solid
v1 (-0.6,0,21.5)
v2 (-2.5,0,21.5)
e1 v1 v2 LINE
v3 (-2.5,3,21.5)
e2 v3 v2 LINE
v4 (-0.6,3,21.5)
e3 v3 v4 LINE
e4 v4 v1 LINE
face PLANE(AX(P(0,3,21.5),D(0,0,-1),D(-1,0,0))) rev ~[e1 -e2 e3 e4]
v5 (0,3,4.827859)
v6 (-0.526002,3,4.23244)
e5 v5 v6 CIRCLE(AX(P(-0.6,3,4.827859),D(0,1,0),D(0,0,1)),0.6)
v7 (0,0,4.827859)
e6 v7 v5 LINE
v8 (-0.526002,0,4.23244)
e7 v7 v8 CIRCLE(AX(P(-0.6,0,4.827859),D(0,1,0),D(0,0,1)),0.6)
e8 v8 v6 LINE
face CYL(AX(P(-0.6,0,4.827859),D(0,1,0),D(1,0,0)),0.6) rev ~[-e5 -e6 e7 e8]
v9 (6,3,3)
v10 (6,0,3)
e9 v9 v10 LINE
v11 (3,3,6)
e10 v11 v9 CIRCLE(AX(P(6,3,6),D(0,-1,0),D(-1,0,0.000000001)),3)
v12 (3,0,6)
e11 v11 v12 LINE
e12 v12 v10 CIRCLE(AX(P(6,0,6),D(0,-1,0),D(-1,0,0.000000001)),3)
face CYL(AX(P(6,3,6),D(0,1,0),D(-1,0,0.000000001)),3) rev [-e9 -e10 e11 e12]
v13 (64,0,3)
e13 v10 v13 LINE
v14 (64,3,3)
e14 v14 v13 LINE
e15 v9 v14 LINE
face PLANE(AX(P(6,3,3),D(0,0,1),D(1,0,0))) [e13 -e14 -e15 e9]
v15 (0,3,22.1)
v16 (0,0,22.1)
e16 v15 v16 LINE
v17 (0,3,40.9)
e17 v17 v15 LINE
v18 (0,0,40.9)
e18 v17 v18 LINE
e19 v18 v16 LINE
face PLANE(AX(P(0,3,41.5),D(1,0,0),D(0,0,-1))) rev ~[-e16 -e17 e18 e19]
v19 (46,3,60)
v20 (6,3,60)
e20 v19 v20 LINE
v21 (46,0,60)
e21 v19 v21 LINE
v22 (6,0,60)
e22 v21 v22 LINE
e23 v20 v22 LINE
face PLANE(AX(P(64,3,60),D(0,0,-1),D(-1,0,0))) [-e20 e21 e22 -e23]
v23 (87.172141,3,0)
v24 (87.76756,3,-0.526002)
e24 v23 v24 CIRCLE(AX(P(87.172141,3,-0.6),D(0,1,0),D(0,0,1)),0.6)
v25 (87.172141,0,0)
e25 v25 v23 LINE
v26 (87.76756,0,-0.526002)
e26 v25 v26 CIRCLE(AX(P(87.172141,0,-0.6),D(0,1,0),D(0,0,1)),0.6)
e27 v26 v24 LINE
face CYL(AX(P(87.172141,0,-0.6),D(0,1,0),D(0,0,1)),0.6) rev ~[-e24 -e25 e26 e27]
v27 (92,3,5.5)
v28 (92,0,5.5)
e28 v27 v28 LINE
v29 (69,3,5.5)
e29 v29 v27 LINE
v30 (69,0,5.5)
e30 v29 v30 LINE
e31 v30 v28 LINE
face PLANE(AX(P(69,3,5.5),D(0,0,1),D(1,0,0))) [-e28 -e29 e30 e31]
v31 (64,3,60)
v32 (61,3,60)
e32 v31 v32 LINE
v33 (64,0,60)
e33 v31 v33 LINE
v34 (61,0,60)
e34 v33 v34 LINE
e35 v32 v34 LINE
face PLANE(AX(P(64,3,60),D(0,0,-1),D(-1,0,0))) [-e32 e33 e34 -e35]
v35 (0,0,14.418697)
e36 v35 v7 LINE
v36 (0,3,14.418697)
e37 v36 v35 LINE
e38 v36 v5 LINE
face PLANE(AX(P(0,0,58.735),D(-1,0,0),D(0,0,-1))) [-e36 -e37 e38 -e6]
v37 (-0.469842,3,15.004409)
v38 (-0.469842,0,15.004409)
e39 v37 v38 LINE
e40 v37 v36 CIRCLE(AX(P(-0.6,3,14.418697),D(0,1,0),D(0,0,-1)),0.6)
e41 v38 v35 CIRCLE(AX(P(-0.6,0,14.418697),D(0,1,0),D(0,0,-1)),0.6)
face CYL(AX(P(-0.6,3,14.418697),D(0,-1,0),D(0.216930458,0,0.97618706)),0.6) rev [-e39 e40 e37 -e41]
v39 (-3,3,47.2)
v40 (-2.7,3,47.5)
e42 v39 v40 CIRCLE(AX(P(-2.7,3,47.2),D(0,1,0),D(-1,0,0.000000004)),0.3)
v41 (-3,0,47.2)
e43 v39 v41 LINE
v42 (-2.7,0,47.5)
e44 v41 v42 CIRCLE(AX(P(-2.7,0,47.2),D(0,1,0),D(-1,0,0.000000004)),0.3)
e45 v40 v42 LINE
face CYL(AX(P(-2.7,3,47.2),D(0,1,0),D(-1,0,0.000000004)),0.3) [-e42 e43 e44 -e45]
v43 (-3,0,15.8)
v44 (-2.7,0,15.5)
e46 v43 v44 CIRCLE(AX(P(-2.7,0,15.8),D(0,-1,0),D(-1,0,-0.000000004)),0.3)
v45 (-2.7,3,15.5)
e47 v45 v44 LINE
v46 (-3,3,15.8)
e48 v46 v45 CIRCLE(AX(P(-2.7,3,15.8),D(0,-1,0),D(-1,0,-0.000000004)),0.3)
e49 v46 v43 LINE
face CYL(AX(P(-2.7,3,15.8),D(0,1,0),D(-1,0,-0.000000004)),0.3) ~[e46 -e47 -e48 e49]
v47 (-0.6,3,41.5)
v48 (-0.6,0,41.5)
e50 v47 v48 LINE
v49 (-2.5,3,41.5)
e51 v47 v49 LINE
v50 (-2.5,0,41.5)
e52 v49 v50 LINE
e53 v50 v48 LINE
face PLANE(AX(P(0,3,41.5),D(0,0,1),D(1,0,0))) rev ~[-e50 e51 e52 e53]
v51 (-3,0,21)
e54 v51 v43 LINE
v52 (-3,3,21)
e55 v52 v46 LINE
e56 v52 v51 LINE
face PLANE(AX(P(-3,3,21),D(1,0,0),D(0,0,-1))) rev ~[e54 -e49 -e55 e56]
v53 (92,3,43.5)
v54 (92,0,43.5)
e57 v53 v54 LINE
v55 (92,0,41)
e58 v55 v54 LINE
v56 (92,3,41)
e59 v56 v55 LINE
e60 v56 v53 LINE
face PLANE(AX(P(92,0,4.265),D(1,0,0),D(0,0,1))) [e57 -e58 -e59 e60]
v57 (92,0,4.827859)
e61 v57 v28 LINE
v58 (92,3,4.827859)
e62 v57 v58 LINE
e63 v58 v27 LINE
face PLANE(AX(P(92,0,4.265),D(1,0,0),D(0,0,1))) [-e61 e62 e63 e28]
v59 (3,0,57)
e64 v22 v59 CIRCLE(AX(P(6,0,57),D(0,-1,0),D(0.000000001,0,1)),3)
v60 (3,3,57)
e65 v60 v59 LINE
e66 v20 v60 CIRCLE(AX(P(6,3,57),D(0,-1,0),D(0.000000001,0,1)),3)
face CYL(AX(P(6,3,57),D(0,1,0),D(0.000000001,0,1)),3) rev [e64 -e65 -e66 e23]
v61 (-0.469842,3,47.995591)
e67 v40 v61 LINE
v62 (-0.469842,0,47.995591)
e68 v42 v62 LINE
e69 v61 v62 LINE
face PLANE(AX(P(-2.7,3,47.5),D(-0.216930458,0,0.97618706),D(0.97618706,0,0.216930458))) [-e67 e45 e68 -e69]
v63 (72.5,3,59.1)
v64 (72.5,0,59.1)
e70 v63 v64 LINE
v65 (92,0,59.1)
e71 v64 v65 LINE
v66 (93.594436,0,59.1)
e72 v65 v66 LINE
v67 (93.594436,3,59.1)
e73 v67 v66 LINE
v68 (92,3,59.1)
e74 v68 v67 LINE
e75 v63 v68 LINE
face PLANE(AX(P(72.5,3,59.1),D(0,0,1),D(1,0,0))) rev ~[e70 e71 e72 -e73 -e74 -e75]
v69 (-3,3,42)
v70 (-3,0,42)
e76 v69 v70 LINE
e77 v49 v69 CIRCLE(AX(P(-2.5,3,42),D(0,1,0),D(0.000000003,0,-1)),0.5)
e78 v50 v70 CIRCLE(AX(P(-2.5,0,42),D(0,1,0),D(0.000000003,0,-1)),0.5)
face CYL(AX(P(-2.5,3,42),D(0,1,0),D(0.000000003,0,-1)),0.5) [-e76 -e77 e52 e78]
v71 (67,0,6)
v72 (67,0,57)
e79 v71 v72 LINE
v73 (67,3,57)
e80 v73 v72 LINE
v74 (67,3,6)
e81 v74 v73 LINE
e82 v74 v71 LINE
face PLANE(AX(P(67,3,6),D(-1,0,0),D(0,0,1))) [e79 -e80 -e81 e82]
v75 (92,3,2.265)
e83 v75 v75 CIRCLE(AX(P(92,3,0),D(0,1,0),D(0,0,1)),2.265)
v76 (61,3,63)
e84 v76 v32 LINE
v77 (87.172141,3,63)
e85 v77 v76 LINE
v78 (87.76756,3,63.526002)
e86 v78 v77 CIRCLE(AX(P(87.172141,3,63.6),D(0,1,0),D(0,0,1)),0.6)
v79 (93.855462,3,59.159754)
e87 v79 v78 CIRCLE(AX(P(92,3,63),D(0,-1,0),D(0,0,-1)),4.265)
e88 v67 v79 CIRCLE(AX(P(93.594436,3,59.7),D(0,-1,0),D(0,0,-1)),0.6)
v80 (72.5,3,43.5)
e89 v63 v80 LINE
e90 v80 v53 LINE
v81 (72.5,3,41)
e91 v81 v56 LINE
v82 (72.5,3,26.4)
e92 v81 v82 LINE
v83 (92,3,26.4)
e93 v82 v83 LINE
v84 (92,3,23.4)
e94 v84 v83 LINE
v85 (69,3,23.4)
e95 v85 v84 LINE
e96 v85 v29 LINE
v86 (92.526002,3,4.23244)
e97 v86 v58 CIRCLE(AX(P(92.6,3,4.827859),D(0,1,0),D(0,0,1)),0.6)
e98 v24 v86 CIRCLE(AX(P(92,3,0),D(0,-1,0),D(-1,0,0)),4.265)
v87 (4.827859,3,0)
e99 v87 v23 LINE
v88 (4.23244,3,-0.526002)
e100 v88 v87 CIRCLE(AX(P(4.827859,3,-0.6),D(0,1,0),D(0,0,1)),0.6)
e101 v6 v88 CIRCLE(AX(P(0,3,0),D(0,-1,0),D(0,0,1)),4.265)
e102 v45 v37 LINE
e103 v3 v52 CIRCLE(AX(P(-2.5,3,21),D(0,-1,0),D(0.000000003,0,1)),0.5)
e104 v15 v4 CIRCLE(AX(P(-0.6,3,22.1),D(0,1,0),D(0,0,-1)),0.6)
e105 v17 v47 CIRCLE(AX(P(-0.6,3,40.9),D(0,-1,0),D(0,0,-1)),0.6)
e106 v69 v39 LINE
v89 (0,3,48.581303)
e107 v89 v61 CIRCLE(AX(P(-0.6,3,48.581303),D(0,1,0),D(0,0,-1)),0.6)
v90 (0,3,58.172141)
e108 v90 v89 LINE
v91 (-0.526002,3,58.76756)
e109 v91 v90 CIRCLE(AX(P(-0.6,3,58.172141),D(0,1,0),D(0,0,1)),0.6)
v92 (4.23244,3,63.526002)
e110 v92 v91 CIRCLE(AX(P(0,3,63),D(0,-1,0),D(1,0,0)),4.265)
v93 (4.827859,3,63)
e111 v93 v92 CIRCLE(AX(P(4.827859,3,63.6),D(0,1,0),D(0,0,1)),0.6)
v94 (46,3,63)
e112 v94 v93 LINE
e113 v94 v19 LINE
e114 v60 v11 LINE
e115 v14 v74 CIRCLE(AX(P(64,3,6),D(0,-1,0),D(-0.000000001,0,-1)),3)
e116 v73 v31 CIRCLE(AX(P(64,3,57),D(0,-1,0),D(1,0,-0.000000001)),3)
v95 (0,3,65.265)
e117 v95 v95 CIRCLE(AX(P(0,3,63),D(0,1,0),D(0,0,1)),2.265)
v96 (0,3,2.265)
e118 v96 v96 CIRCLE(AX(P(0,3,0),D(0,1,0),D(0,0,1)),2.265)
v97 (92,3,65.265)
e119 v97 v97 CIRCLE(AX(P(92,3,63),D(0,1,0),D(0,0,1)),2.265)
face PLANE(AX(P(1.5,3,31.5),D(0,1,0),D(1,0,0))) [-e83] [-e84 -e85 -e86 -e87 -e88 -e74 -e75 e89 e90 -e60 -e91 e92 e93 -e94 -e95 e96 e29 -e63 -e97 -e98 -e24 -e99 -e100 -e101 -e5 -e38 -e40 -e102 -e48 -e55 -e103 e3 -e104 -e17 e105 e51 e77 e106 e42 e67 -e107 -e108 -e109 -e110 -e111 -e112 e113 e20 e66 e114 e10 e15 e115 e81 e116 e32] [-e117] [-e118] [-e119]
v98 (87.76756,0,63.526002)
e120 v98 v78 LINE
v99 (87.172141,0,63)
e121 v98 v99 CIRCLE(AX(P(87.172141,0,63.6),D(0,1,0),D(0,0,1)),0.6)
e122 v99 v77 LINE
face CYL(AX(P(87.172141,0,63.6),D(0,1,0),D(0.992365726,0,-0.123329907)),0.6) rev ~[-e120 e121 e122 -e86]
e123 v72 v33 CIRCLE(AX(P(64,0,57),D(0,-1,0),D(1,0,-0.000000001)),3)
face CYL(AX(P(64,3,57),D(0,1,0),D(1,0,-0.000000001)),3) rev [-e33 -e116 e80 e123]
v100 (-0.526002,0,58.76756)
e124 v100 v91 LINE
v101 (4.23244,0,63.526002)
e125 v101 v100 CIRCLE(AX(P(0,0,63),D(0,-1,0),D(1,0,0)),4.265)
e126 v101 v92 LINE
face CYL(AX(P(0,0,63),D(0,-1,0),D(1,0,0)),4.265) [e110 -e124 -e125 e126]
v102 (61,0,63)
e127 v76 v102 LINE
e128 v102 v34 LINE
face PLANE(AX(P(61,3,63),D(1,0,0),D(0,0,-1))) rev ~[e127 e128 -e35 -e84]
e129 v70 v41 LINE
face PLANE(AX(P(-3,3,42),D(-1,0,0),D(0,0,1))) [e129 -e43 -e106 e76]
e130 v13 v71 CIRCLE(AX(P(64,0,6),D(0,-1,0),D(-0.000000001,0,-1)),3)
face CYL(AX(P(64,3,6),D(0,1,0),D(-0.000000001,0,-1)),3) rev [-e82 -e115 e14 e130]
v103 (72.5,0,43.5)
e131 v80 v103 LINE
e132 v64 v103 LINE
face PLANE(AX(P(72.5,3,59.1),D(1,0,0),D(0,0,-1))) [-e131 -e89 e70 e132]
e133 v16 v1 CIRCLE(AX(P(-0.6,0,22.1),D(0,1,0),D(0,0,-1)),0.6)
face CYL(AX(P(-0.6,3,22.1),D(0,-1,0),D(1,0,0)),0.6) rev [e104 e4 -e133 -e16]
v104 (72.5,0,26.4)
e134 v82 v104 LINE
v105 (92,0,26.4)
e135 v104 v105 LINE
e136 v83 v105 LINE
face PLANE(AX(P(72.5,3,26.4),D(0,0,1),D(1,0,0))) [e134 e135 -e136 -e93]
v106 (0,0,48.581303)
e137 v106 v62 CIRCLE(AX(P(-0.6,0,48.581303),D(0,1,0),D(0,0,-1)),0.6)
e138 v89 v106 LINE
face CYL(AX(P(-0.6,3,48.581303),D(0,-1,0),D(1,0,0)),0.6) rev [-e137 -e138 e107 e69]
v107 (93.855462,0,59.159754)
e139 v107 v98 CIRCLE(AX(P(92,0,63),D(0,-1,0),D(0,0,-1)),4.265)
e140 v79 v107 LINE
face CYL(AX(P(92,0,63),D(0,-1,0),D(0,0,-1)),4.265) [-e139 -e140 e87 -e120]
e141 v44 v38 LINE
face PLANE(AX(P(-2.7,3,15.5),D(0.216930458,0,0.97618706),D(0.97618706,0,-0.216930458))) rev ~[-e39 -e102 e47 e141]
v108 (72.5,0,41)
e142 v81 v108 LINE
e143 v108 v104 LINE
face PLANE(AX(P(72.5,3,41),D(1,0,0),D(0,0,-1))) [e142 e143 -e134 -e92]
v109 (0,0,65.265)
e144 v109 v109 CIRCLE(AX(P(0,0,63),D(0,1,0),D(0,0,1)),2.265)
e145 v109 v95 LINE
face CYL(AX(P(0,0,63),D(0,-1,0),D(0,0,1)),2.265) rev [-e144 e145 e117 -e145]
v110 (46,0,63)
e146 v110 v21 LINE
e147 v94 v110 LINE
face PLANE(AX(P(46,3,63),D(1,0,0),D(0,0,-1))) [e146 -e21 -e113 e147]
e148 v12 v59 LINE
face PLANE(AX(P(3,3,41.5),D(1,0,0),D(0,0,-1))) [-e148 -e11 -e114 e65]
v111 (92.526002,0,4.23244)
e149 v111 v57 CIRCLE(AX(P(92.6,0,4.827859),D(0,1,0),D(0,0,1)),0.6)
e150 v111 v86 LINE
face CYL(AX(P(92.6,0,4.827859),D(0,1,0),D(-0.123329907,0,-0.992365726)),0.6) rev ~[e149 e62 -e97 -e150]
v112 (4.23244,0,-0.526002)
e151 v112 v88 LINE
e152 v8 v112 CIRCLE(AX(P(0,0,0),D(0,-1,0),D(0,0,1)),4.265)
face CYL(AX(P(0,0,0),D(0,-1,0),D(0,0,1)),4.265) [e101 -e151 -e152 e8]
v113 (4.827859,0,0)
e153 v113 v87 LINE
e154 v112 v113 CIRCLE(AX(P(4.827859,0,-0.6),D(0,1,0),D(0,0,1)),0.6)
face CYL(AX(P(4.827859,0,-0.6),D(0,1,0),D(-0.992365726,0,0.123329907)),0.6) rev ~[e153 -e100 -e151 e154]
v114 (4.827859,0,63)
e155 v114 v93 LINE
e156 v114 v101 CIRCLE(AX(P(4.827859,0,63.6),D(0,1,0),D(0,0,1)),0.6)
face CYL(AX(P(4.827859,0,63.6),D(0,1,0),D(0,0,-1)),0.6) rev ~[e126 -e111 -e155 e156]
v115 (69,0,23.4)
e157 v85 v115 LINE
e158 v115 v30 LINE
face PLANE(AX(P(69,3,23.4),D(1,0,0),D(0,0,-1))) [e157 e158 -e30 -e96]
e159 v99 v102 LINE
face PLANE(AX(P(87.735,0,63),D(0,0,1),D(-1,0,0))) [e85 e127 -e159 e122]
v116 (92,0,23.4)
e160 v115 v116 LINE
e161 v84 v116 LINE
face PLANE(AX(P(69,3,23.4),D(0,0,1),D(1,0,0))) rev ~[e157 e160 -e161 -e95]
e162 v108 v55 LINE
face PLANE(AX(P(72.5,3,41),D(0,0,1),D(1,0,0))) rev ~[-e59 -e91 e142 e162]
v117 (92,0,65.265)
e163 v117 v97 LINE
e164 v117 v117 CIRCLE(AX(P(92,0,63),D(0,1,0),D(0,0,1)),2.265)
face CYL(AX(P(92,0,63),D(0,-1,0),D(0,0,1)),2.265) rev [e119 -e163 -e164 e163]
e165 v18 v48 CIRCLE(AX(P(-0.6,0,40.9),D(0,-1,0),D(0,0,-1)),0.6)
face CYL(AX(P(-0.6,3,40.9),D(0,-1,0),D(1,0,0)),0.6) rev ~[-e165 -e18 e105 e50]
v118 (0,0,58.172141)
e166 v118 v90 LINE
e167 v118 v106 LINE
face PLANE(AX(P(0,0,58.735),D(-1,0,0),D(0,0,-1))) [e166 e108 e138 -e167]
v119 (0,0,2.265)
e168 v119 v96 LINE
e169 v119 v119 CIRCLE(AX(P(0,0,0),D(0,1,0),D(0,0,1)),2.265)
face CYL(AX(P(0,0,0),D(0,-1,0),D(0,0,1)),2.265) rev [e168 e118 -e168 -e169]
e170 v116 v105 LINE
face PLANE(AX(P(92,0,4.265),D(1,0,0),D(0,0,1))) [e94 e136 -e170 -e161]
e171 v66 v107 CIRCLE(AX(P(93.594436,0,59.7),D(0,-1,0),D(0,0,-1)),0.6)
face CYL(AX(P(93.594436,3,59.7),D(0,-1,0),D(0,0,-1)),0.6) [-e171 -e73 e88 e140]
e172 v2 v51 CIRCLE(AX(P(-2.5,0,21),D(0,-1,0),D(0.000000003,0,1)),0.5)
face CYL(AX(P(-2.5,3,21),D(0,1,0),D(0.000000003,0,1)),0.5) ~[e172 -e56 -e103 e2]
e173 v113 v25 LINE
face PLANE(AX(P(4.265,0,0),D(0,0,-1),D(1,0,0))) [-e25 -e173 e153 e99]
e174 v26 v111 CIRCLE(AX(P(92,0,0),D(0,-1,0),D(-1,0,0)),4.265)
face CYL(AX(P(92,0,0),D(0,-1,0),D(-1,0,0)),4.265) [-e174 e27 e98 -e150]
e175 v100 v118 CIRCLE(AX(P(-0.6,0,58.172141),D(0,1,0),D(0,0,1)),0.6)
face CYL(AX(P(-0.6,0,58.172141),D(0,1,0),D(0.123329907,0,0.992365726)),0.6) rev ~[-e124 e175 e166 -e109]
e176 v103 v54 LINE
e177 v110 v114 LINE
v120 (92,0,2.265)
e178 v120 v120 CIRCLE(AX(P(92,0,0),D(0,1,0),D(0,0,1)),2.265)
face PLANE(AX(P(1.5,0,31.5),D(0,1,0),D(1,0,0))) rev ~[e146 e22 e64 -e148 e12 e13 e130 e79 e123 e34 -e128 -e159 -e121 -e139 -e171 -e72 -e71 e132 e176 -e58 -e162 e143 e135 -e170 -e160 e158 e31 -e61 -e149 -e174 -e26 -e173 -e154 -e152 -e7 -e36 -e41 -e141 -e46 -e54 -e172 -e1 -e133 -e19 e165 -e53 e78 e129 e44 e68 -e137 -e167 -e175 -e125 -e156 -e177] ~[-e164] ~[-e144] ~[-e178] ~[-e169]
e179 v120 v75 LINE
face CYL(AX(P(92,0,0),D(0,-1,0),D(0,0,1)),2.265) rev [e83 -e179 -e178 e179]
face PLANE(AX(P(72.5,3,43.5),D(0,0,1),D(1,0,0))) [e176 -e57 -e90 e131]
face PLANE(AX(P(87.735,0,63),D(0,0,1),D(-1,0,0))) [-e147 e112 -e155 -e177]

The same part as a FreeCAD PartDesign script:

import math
import FreeCAD as App
import Part
import Sketcher
Q = App.Units.Quantity


def edges_at(feature, points):
    """Names of the edges that pass closest to the given points."""
    edges = feature.Shape.Edges
    near = lambda p: min(range(len(edges)), key=lambda i: edges[i].distToShape(Part.Vertex(*p))[0])
    return sorted({f"Edge{near(p) + 1}" for p in points})

doc = App.newDocument("Part")
body = doc.addObject("PartDesign::Body", "Body")

# Sketch on XZ plane
sketch1 = body.newObject("Sketcher::SketchObject", "Sketch")
sketch1.AttachmentSupport = (doc.getObject("XZ_Plane"), [""])
sketch1.MapMode = "FlatFace"
sketch1.addGeometry(Part.LineSegment(App.Vector(87.7, 0, 0), App.Vector(4.3, 0, 0)), False)
sketch1.addGeometry(Part.ArcOfCircle(Part.Circle(App.Vector(0, 0, 0), App.Vector(0, 0, 1), 4.3), math.radians(90), math.radians(360)), False)
sketch1.addGeometry(Part.LineSegment(App.Vector(0, 4.3, 0), App.Vector(0, 58.7, 0)), False)
sketch1.addGeometry(Part.ArcOfCircle(Part.Circle(App.Vector(0, 63, 0), App.Vector(0, 0, 1), 4.3), math.radians(0), math.radians(270)), False)
sketch1.addGeometry(Part.LineSegment(App.Vector(4.3, 63, 0), App.Vector(87.7, 63, 0)), False)
sketch1.addGeometry(Part.ArcOfCircle(Part.Circle(App.Vector(92, 63, 0), App.Vector(0, 0, 1), 4.3), math.radians(-90), math.radians(180)), False)
sketch1.addGeometry(Part.LineSegment(App.Vector(92, 58.7, 0), App.Vector(92, 4.3, 0)), False)
sketch1.addGeometry(Part.ArcOfCircle(Part.Circle(App.Vector(92, 0, 0), App.Vector(0, 0, 1), 4.3), math.radians(180), math.radians(450)), False)
sketch1.addGeometry(Part.Circle(App.Vector(92, 63, 0), App.Vector(0, 0, 1), 2.3), False)
sketch1.addGeometry(Part.Circle(App.Vector(0, 63, 0), App.Vector(0, 0, 1), 2.3), False)
sketch1.addGeometry(Part.Circle(App.Vector(92, 0, 0), App.Vector(0, 0, 1), 2.3), False)
sketch1.addGeometry(Part.Circle(App.Vector(0, 0, 0), App.Vector(0, 0, 1), 2.3), False)
sketch1.addConstraint(Sketcher.Constraint("Coincident", 0, 2, 1, 2))
sketch1.addConstraint(Sketcher.Constraint("Coincident", 1, 1, 2, 1))
sketch1.addConstraint(Sketcher.Constraint("Coincident", 2, 2, 3, 2))
sketch1.addConstraint(Sketcher.Constraint("Coincident", 3, 1, 4, 1))
sketch1.addConstraint(Sketcher.Constraint("Coincident", 4, 2, 5, 2))
sketch1.addConstraint(Sketcher.Constraint("Coincident", 5, 1, 6, 1))
sketch1.addConstraint(Sketcher.Constraint("Coincident", 6, 2, 7, 2))
sketch1.addConstraint(Sketcher.Constraint("Coincident", 7, 1, 0, 1))
sketch1.addConstraint(Sketcher.Constraint("Horizontal", 0))
sketch1.addConstraint(Sketcher.Constraint("Vertical", 2))
sketch1.addConstraint(Sketcher.Constraint("Horizontal", 4))
sketch1.addConstraint(Sketcher.Constraint("Vertical", 6))
sketch1.addConstraint(Sketcher.Constraint("Coincident", 1, 3, -1, 1))
sketch1.addConstraint(Sketcher.Constraint("Coincident", 11, 3, -1, 1))
sketch1.addConstraint(Sketcher.Constraint("Coincident", 8, 3, 5, 3))
sketch1.addConstraint(Sketcher.Constraint("Coincident", 9, 3, 3, 3))
sketch1.addConstraint(Sketcher.Constraint("Coincident", 10, 3, 7, 3))
sketch1.addConstraint(Sketcher.Constraint("Equal", 1, 3))
sketch1.addConstraint(Sketcher.Constraint("Equal", 3, 5))
sketch1.addConstraint(Sketcher.Constraint("Equal", 5, 7))
sketch1.addConstraint(Sketcher.Constraint("Equal", 8, 9))
sketch1.addConstraint(Sketcher.Constraint("Equal", 9, 10))
sketch1.addConstraint(Sketcher.Constraint("Equal", 10, 11))
sketch1.addConstraint(Sketcher.Constraint("PointOnObject", 3, 3, -2))
sketch1.addConstraint(Sketcher.Constraint("PointOnObject", 7, 3, -1))
sketch1.addConstraint(Sketcher.Constraint("PointOnObject", 0, 2, -1))
sketch1.addConstraint(Sketcher.Constraint("PointOnObject", 1, 1, -2))
sketch1.addConstraint(Sketcher.Constraint("Horizontal", 3, 3, 5, 3))
sketch1.addConstraint(Sketcher.Constraint("Horizontal", 9, 3, 3, 1))
sketch1.addConstraint(Sketcher.Constraint("Vertical", 5, 3, 7, 3))
sketch1.addConstraint(Sketcher.Constraint("Vertical", 10, 3, 5, 1))
sketch1.addConstraint(Sketcher.Constraint("Diameter", 8, Q("4.53 mm")))
sketch1.addConstraint(Sketcher.Constraint("DistanceY", -1, 1, 3, 3, Q("63 mm")))
sketch1.addConstraint(Sketcher.Constraint("DistanceX", -1, 1, 5, 3, Q("92 mm")))
sketch1.addConstraint(Sketcher.Constraint("Radius", 1, Q("4.265 mm")))
pad1 = body.newObject("PartDesign::Pad", "Pad")
pad1.Profile = sketch1
pad1.Length = 3
pad1.Reversed = True

# Sketch on XZ plane
sketch2 = body.newObject("Sketcher::SketchObject", "Sketch001")
sketch2.AttachmentSupport = (doc.getObject("XZ_Plane"), [""])
sketch2.MapMode = "FlatFace"
sketch2.AttachmentOffset = App.Placement(App.Vector(0, 0, -3), App.Rotation())
sketch2.addGeometry(Part.LineSegment(App.Vector(0, 22, 0), App.Vector(0, 42, 0)), False)
sketch2.addGeometry(Part.LineSegment(App.Vector(0, 42, 0), App.Vector(6, 42, 0)), False)
sketch2.addGeometry(Part.LineSegment(App.Vector(6, 42, 0), App.Vector(6, 22, 0)), False)
sketch2.addGeometry(Part.LineSegment(App.Vector(6, 22, 0), App.Vector(0, 22, 0)), False)
sketch2.addConstraint(Sketcher.Constraint("Coincident", 0, 2, 1, 1))
sketch2.addConstraint(Sketcher.Constraint("Coincident", 1, 2, 2, 1))
sketch2.addConstraint(Sketcher.Constraint("Coincident", 2, 2, 3, 1))
sketch2.addConstraint(Sketcher.Constraint("Coincident", 3, 2, 0, 1))
sketch2.addConstraint(Sketcher.Constraint("Vertical", 0))
sketch2.addConstraint(Sketcher.Constraint("Horizontal", 1))
sketch2.addConstraint(Sketcher.Constraint("Vertical", 2))
sketch2.addConstraint(Sketcher.Constraint("Horizontal", 3))
sketch2.addConstraint(Sketcher.Constraint("PointOnObject", 0, 2, -2))
sketch2.addConstraint(Sketcher.Constraint("DistanceY", 0, 1, 0, 2, Q("20 mm")))
sketch2.addConstraint(Sketcher.Constraint("DistanceX", 1, 1, 1, 2, Q("6.5 mm")))
sketch2.addConstraint(Sketcher.Constraint("DistanceY", -1, 1, 0, 2, Q("41.5 mm")))
pocket1 = body.newObject("PartDesign::Pocket", "Pocket")
pocket1.Profile = sketch2
pocket1.Length = 3
pocket1.Reversed = True

# Sketch on XZ plane
sketch3 = body.newObject("Sketcher::SketchObject", "Sketch002")
sketch3.AttachmentSupport = (doc.getObject("XZ_Plane"), [""])
sketch3.MapMode = "FlatFace"
sketch3.AttachmentOffset = App.Placement(App.Vector(0, 0, -3), App.Rotation())
sketch3.addGeometry(Part.LineSegment(App.Vector(0, 14.9, 0), App.Vector(-2.7, 15.5, 0)), False)
sketch3.addGeometry(Part.ArcOfCircle(Part.Circle(App.Vector(-2.7, 15.8, 0), App.Vector(0, 0, 1), 0.3), math.radians(-180), math.radians(-90)), False)
sketch3.addGeometry(Part.LineSegment(App.Vector(-3, 15.8, 0), App.Vector(-3, 21, 0)), False)
sketch3.addGeometry(Part.ArcOfCircle(Part.Circle(App.Vector(-2.5, 21, 0), App.Vector(0, 0, 1), 0.5), math.radians(90), math.radians(180)), False)
sketch3.addGeometry(Part.LineSegment(App.Vector(-2.5, 21.5, 0), App.Vector(0, 21.5, 0)), False)
sketch3.addGeometry(Part.LineSegment(App.Vector(0, 21.5, 0), App.Vector(0, 14.9, 0)), False)
sketch3.addGeometry(Part.LineSegment(App.Vector(-3, 42, 0), App.Vector(-3, 47.2, 0)), False)
sketch3.addGeometry(Part.ArcOfCircle(Part.Circle(App.Vector(-2.7, 47.2, 0), App.Vector(0, 0, 1), 0.3), math.radians(90), math.radians(180)), False)
sketch3.addGeometry(Part.LineSegment(App.Vector(-2.7, 47.5, 0), App.Vector(0, 48.1, 0)), False)
sketch3.addGeometry(Part.LineSegment(App.Vector(0, 48.1, 0), App.Vector(0, 41.5, 0)), False)
sketch3.addGeometry(Part.LineSegment(App.Vector(0, 41.5, 0), App.Vector(-2.5, 41.5, 0)), False)
sketch3.addGeometry(Part.ArcOfCircle(Part.Circle(App.Vector(-2.5, 42, 0), App.Vector(0, 0, 1), 0.5), math.radians(180), math.radians(270)), False)
sketch3.addConstraint(Sketcher.Constraint("Coincident", 0, 2, 1, 2))
sketch3.addConstraint(Sketcher.Constraint("Tangent", 1, 1, 2, 1))
sketch3.addConstraint(Sketcher.Constraint("Tangent", 2, 2, 3, 2))
sketch3.addConstraint(Sketcher.Constraint("Tangent", 3, 1, 4, 1))
sketch3.addConstraint(Sketcher.Constraint("Coincident", 4, 2, 5, 1))
sketch3.addConstraint(Sketcher.Constraint("Coincident", 5, 2, 0, 1))
sketch3.addConstraint(Sketcher.Constraint("Tangent", 6, 2, 7, 2))
sketch3.addConstraint(Sketcher.Constraint("Coincident", 7, 1, 8, 1))
sketch3.addConstraint(Sketcher.Constraint("Coincident", 8, 2, 9, 1))
sketch3.addConstraint(Sketcher.Constraint("Coincident", 9, 2, 10, 1))
sketch3.addConstraint(Sketcher.Constraint("Tangent", 10, 2, 11, 2))
sketch3.addConstraint(Sketcher.Constraint("Tangent", 11, 1, 6, 1))
sketch3.addConstraint(Sketcher.Constraint("Vertical", 2))
sketch3.addConstraint(Sketcher.Constraint("Horizontal", 4))
sketch3.addConstraint(Sketcher.Constraint("Vertical", 5))
sketch3.addConstraint(Sketcher.Constraint("Vertical", 6))
sketch3.addConstraint(Sketcher.Constraint("Vertical", 9))
sketch3.addConstraint(Sketcher.Constraint("Horizontal", 10))
sketch3.addConstraint(Sketcher.Constraint("Equal", 1, 7))
sketch3.addConstraint(Sketcher.Constraint("Equal", 3, 11))
sketch3.addConstraint(Sketcher.Constraint("PointOnObject", 4, 2, -2))
sketch3.addConstraint(Sketcher.Constraint("PointOnObject", 8, 2, -2))
sketch3.addConstraint(Sketcher.Constraint("Vertical", 1, 3, 7, 3))
sketch3.addConstraint(Sketcher.Constraint("Vertical", 7, 3, 0, 2))
sketch3.addConstraint(Sketcher.Constraint("Vertical", 0, 2, 7, 1))
sketch3.addConstraint(Sketcher.Constraint("Equal", 2, 6))
sketch3.addConstraint(Sketcher.Constraint("Equal", 5, 9))
sketch3.addConstraint(Sketcher.Constraint("Radius", 1, Q("0.3 mm")))
sketch3.addConstraint(Sketcher.Constraint("Radius", 3, Q("0.5 mm")))
sketch3.addConstraint(Sketcher.Constraint("DistanceX", 4, 1, 4, 2, Q("2.5 mm")))
sketch3.addConstraint(Sketcher.Constraint("DistanceY", 2, 1, 2, 2, Q("5.2 mm")))
sketch3.addConstraint(Sketcher.Constraint("DistanceY", 5, 2, 5, 1, Q("6.6 mm")))
sketch3.addConstraint(Sketcher.Constraint("DistanceY", -1, 1, 3, 3, Q("21 mm")))
sketch3.addConstraint(Sketcher.Constraint("DistanceY", -1, 1, 11, 3, Q("42 mm")))
pad2 = body.newObject("PartDesign::Pad", "Pad001")
pad2.Profile = sketch3
pad2.Length = 3

# Sketch on XZ plane
sketch4 = body.newObject("Sketcher::SketchObject", "Sketch003")
sketch4.AttachmentSupport = (doc.getObject("XZ_Plane"), [""])
sketch4.MapMode = "FlatFace"
sketch4.AttachmentOffset = App.Placement(App.Vector(0, 0, -3), App.Rotation())
sketch4.addGeometry(Part.LineSegment(App.Vector(64, 3, 0), App.Vector(6, 3, 0)), False)
sketch4.addGeometry(Part.ArcOfCircle(Part.Circle(App.Vector(6, 6, 0), App.Vector(0, 0, 1), 3), math.radians(180), math.radians(270)), False)
sketch4.addGeometry(Part.LineSegment(App.Vector(3, 6, 0), App.Vector(3, 57, 0)), False)
sketch4.addGeometry(Part.ArcOfCircle(Part.Circle(App.Vector(6, 57, 0), App.Vector(0, 0, 1), 3), math.radians(90), math.radians(180)), False)
sketch4.addGeometry(Part.LineSegment(App.Vector(6, 60, 0), App.Vector(64, 60, 0)), False)
sketch4.addGeometry(Part.ArcOfCircle(Part.Circle(App.Vector(64, 57, 0), App.Vector(0, 0, 1), 3), math.radians(0), math.radians(90)), False)
sketch4.addGeometry(Part.LineSegment(App.Vector(67, 57, 0), App.Vector(67, 6, 0)), False)
sketch4.addGeometry(Part.ArcOfCircle(Part.Circle(App.Vector(64, 6, 0), App.Vector(0, 0, 1), 3), math.radians(-90), math.radians(0)), False)
sketch4.addConstraint(Sketcher.Constraint("Tangent", 0, 2, 1, 2))
sketch4.addConstraint(Sketcher.Constraint("Tangent", 1, 1, 2, 1))
sketch4.addConstraint(Sketcher.Constraint("Tangent", 2, 2, 3, 2))
sketch4.addConstraint(Sketcher.Constraint("Tangent", 3, 1, 4, 1))
sketch4.addConstraint(Sketcher.Constraint("Tangent", 4, 2, 5, 2))
sketch4.addConstraint(Sketcher.Constraint("Tangent", 5, 1, 6, 1))
sketch4.addConstraint(Sketcher.Constraint("Tangent", 6, 2, 7, 2))
sketch4.addConstraint(Sketcher.Constraint("Tangent", 7, 1, 0, 1))
sketch4.addConstraint(Sketcher.Constraint("Horizontal", 0))
sketch4.addConstraint(Sketcher.Constraint("Vertical", 2))
sketch4.addConstraint(Sketcher.Constraint("Horizontal", 4))
sketch4.addConstraint(Sketcher.Constraint("Vertical", 6))
sketch4.addConstraint(Sketcher.Constraint("Equal", 1, 3))
sketch4.addConstraint(Sketcher.Constraint("Equal", 3, 5))
sketch4.addConstraint(Sketcher.Constraint("Equal", 5, 7))
sketch4.addConstraint(Sketcher.Constraint("Radius", 1, Q("3 mm")))
sketch4.addConstraint(Sketcher.Constraint("DistanceX", 0, 2, 0, 1, Q("58 mm")))
sketch4.addConstraint(Sketcher.Constraint("DistanceY", 2, 1, 2, 2, Q("51 mm")))
sketch4.addConstraint(Sketcher.Constraint("DistanceX", -1, 1, 1, 3, Q("6 mm")))
sketch4.addConstraint(Sketcher.Constraint("DistanceY", -1, 1, 1, 3, Q("6 mm")))
pocket2 = body.newObject("PartDesign::Pocket", "Pocket001")
pocket2.Profile = sketch4
pocket2.Length = 3
pocket2.Reversed = True

# Sketch on XZ plane
sketch5 = body.newObject("Sketcher::SketchObject", "Sketch004")
sketch5.AttachmentSupport = (doc.getObject("XZ_Plane"), [""])
sketch5.MapMode = "FlatFace"
sketch5.AttachmentOffset = App.Placement(App.Vector(0, 0, -3), App.Rotation())
sketch5.addGeometry(Part.LineSegment(App.Vector(0, 21.5, 0), App.Vector(0, 41.5, 0)), False)
sketch5.addGeometry(Part.LineSegment(App.Vector(0, 41.5, 0), App.Vector(3, 41.5, 0)), False)
sketch5.addGeometry(Part.LineSegment(App.Vector(3, 41.5, 0), App.Vector(3, 21.5, 0)), False)
sketch5.addGeometry(Part.LineSegment(App.Vector(3, 21.5, 0), App.Vector(0, 21.5, 0)), False)
sketch5.addConstraint(Sketcher.Constraint("Coincident", 0, 2, 1, 1))
sketch5.addConstraint(Sketcher.Constraint("Coincident", 1, 2, 2, 1))
sketch5.addConstraint(Sketcher.Constraint("Coincident", 2, 2, 3, 1))
sketch5.addConstraint(Sketcher.Constraint("Coincident", 3, 2, 0, 1))
sketch5.addConstraint(Sketcher.Constraint("Vertical", 0))
sketch5.addConstraint(Sketcher.Constraint("Horizontal", 1))
sketch5.addConstraint(Sketcher.Constraint("Vertical", 2))
sketch5.addConstraint(Sketcher.Constraint("Horizontal", 3))
sketch5.addConstraint(Sketcher.Constraint("PointOnObject", 0, 2, -2))
sketch5.addConstraint(Sketcher.Constraint("DistanceX", 1, 1, 1, 2, Q("3 mm")))
sketch5.addConstraint(Sketcher.Constraint("DistanceY", 0, 1, 0, 2, Q("20 mm")))
sketch5.addConstraint(Sketcher.Constraint("DistanceY", -1, 1, 0, 2, Q("41.5 mm")))
pad3 = body.newObject("PartDesign::Pad", "Pad002")
pad3.Profile = sketch5
pad3.Length = 3

# Sketch on XZ plane
sketch6 = body.newObject("Sketcher::SketchObject", "Sketch005")
sketch6.AttachmentSupport = (doc.getObject("XZ_Plane"), [""])
sketch6.MapMode = "FlatFace"
sketch6.AttachmentOffset = App.Placement(App.Vector(0, 0, -3), App.Rotation())
sketch6.addGeometry(Part.LineSegment(App.Vector(69, 6, 0), App.Vector(69, 23, 0)), False)
sketch6.addGeometry(Part.LineSegment(App.Vector(69, 23, 0), App.Vector(96, 23, 0)), False)
sketch6.addGeometry(Part.LineSegment(App.Vector(96, 23, 0), App.Vector(96, 6, 0)), False)
sketch6.addGeometry(Part.LineSegment(App.Vector(96, 6, 0), App.Vector(69, 6, 0)), False)
sketch6.addConstraint(Sketcher.Constraint("Coincident", 0, 2, 1, 1))
sketch6.addConstraint(Sketcher.Constraint("Coincident", 1, 2, 2, 1))
sketch6.addConstraint(Sketcher.Constraint("Coincident", 2, 2, 3, 1))
sketch6.addConstraint(Sketcher.Constraint("Coincident", 3, 2, 0, 1))
sketch6.addConstraint(Sketcher.Constraint("Vertical", 0))
sketch6.addConstraint(Sketcher.Constraint("Horizontal", 1))
sketch6.addConstraint(Sketcher.Constraint("Vertical", 2))
sketch6.addConstraint(Sketcher.Constraint("Horizontal", 3))
sketch6.addConstraint(Sketcher.Constraint("DistanceY", 0, 1, 0, 2, Q("17.9 mm")))
sketch6.addConstraint(Sketcher.Constraint("DistanceX", -1, 1, 0, 2, Q("69 mm")))
sketch6.addConstraint(Sketcher.Constraint("DistanceY", -1, 1, 0, 2, Q("23.4 mm")))
sketch6.addConstraint(Sketcher.Constraint("DistanceX", 1, 1, 1, 2, Q("27.010135 mm")))
pocket3 = body.newObject("PartDesign::Pocket", "Pocket002")
pocket3.Profile = sketch6
pocket3.Length = 3
pocket3.Reversed = True

# Sketch on XZ plane
sketch7 = body.newObject("Sketcher::SketchObject", "Sketch006")
sketch7.AttachmentSupport = (doc.getObject("XZ_Plane"), [""])
sketch7.MapMode = "FlatFace"
sketch7.AttachmentOffset = App.Placement(App.Vector(0, 0, -3), App.Rotation())
sketch7.addGeometry(Part.LineSegment(App.Vector(72, 26, 0), App.Vector(72, 41, 0)), False)
sketch7.addGeometry(Part.LineSegment(App.Vector(72, 41, 0), App.Vector(92, 41, 0)), False)
sketch7.addGeometry(Part.LineSegment(App.Vector(92, 41, 0), App.Vector(92, 26, 0)), False)
sketch7.addGeometry(Part.LineSegment(App.Vector(92, 26, 0), App.Vector(72, 26, 0)), False)
sketch7.addConstraint(Sketcher.Constraint("Coincident", 0, 2, 1, 1))
sketch7.addConstraint(Sketcher.Constraint("Coincident", 1, 2, 2, 1))
sketch7.addConstraint(Sketcher.Constraint("Coincident", 2, 2, 3, 1))
sketch7.addConstraint(Sketcher.Constraint("Coincident", 3, 2, 0, 1))
sketch7.addConstraint(Sketcher.Constraint("Vertical", 0))
sketch7.addConstraint(Sketcher.Constraint("Horizontal", 1))
sketch7.addConstraint(Sketcher.Constraint("Vertical", 2))
sketch7.addConstraint(Sketcher.Constraint("Horizontal", 3))
sketch7.addConstraint(Sketcher.Constraint("DistanceX", 1, 1, 1, 2, Q("19.5 mm")))
sketch7.addConstraint(Sketcher.Constraint("DistanceY", 0, 1, 0, 2, Q("14.6 mm")))
sketch7.addConstraint(Sketcher.Constraint("DistanceY", -1, 1, 0, 2, Q("41 mm")))
sketch7.addConstraint(Sketcher.Constraint("DistanceX", -1, 1, 1, 2, Q("92 mm")))
pocket4 = body.newObject("PartDesign::Pocket", "Pocket003")
pocket4.Profile = sketch7
pocket4.Length = 3
pocket4.Reversed = True

# Sketch on XZ plane
sketch8 = body.newObject("Sketcher::SketchObject", "Sketch007")
sketch8.AttachmentSupport = (doc.getObject("XZ_Plane"), [""])
sketch8.MapMode = "FlatFace"
sketch8.AttachmentOffset = App.Placement(App.Vector(0, 0, -3), App.Rotation())
sketch8.addGeometry(Part.LineSegment(App.Vector(72, 44, 0), App.Vector(72, 59, 0)), False)
sketch8.addGeometry(Part.LineSegment(App.Vector(72, 59, 0), App.Vector(92, 59, 0)), False)
sketch8.addGeometry(Part.LineSegment(App.Vector(92, 59, 0), App.Vector(92, 44, 0)), False)
sketch8.addGeometry(Part.LineSegment(App.Vector(92, 44, 0), App.Vector(72, 44, 0)), False)
sketch8.addConstraint(Sketcher.Constraint("Coincident", 0, 2, 1, 1))
sketch8.addConstraint(Sketcher.Constraint("Coincident", 1, 2, 2, 1))
sketch8.addConstraint(Sketcher.Constraint("Coincident", 2, 2, 3, 1))
sketch8.addConstraint(Sketcher.Constraint("Coincident", 3, 2, 0, 1))
sketch8.addConstraint(Sketcher.Constraint("Vertical", 0))
sketch8.addConstraint(Sketcher.Constraint("Horizontal", 1))
sketch8.addConstraint(Sketcher.Constraint("Vertical", 2))
sketch8.addConstraint(Sketcher.Constraint("Horizontal", 3))
sketch8.addConstraint(Sketcher.Constraint("DistanceX", 1, 1, 1, 2, Q("19.5 mm")))
sketch8.addConstraint(Sketcher.Constraint("DistanceY", 0, 1, 0, 2, Q("15.6 mm")))
sketch8.addConstraint(Sketcher.Constraint("DistanceX", -1, 1, 1, 2, Q("92 mm")))
sketch8.addConstraint(Sketcher.Constraint("DistanceY", -1, 1, 0, 2, Q("59.1 mm")))
pocket5 = body.newObject("PartDesign::Pocket", "Pocket004")
pocket5.Profile = sketch8
pocket5.Length = 3
pocket5.Reversed = True

# Sketch on XZ plane
sketch9 = body.newObject("Sketcher::SketchObject", "Sketch008")
sketch9.AttachmentSupport = (doc.getObject("XZ_Plane"), [""])
sketch9.MapMode = "FlatFace"
sketch9.AttachmentOffset = App.Placement(App.Vector(0, 0, -3), App.Rotation())
sketch9.addGeometry(Part.LineSegment(App.Vector(92, 58.5, 0), App.Vector(92, 59.1, 0)), False)
sketch9.addGeometry(Part.LineSegment(App.Vector(92, 59.1, 0), App.Vector(94, 59.1, 0)), False)
sketch9.addGeometry(Part.LineSegment(App.Vector(94, 59.1, 0), App.Vector(94, 58.5, 0)), False)
sketch9.addGeometry(Part.LineSegment(App.Vector(94, 58.5, 0), App.Vector(92, 58.5, 0)), False)
sketch9.addConstraint(Sketcher.Constraint("Coincident", 0, 2, 1, 1))
sketch9.addConstraint(Sketcher.Constraint("Coincident", 1, 2, 2, 1))
sketch9.addConstraint(Sketcher.Constraint("Coincident", 2, 2, 3, 1))
sketch9.addConstraint(Sketcher.Constraint("Coincident", 3, 2, 0, 1))
sketch9.addConstraint(Sketcher.Constraint("Vertical", 0))
sketch9.addConstraint(Sketcher.Constraint("Horizontal", 1))
sketch9.addConstraint(Sketcher.Constraint("Vertical", 2))
sketch9.addConstraint(Sketcher.Constraint("Horizontal", 3))
sketch9.addConstraint(Sketcher.Constraint("DistanceX", -1, 1, 0, 2, Q("92 mm")))
sketch9.addConstraint(Sketcher.Constraint("DistanceY", -1, 1, 0, 2, Q("59.1 mm")))
sketch9.addConstraint(Sketcher.Constraint("DistanceX", 1, 1, 1, 2, Q("2.019621 mm")))
sketch9.addConstraint(Sketcher.Constraint("DistanceY", 0, 1, 0, 2, Q("0.574286 mm")))
pocket6 = body.newObject("PartDesign::Pocket", "Pocket005")
pocket6.Profile = sketch9
pocket6.Length = 3
pocket6.Reversed = True

# Sketch on XZ plane
sketch10 = body.newObject("Sketcher::SketchObject", "Sketch009")
sketch10.AttachmentSupport = (doc.getObject("XZ_Plane"), [""])
sketch10.MapMode = "FlatFace"
sketch10.AttachmentOffset = App.Placement(App.Vector(0, 0, -3), App.Rotation())
sketch10.addGeometry(Part.LineSegment(App.Vector(46, 60, 0), App.Vector(46, 63, 0)), False)
sketch10.addGeometry(Part.LineSegment(App.Vector(46, 63, 0), App.Vector(61, 63, 0)), False)
sketch10.addGeometry(Part.LineSegment(App.Vector(61, 63, 0), App.Vector(61, 60, 0)), False)
sketch10.addGeometry(Part.LineSegment(App.Vector(61, 60, 0), App.Vector(46, 60, 0)), False)
sketch10.addConstraint(Sketcher.Constraint("Coincident", 0, 2, 1, 1))
sketch10.addConstraint(Sketcher.Constraint("Coincident", 1, 2, 2, 1))
sketch10.addConstraint(Sketcher.Constraint("Coincident", 2, 2, 3, 1))
sketch10.addConstraint(Sketcher.Constraint("Coincident", 3, 2, 0, 1))
sketch10.addConstraint(Sketcher.Constraint("Vertical", 0))
sketch10.addConstraint(Sketcher.Constraint("Horizontal", 1))
sketch10.addConstraint(Sketcher.Constraint("Vertical", 2))
sketch10.addConstraint(Sketcher.Constraint("Horizontal", 3))
sketch10.addConstraint(Sketcher.Constraint("DistanceX", 1, 1, 1, 2, Q("15 mm")))
sketch10.addConstraint(Sketcher.Constraint("DistanceY", 0, 1, 0, 2, Q("3 mm")))
sketch10.addConstraint(Sketcher.Constraint("DistanceX", -1, 1, 0, 2, Q("46 mm")))
sketch10.addConstraint(Sketcher.Constraint("DistanceY", -1, 1, 0, 2, Q("63 mm")))
pocket7 = body.newObject("PartDesign::Pocket", "Pocket006")
pocket7.Profile = sketch10
pocket7.Length = 3
pocket7.Reversed = True
doc.recompute()

fillet = body.newObject("PartDesign::Fillet", "Fillet")
fillet.Base = (pocket7, edges_at(pocket7, [
    (0, 1.5, 41.5),
    (92, 1.5, 4.265),
    (0, 1.5, 21.5),
    (87.735, 1.5, 63),
    (4.265, 1.5, 63),
    (0, 1.5, 58.735),
    (0, 1.5, 4.265),
    (4.265, 1.5, 0),
    (87.735, 1.5, 0),
    (93.726, 1.5, 59.1),
    (0, 1.5, 14.9),
    (0, 1.5, 48.1),
]))
fillet.Radius = 0.6

doc.recompute()
